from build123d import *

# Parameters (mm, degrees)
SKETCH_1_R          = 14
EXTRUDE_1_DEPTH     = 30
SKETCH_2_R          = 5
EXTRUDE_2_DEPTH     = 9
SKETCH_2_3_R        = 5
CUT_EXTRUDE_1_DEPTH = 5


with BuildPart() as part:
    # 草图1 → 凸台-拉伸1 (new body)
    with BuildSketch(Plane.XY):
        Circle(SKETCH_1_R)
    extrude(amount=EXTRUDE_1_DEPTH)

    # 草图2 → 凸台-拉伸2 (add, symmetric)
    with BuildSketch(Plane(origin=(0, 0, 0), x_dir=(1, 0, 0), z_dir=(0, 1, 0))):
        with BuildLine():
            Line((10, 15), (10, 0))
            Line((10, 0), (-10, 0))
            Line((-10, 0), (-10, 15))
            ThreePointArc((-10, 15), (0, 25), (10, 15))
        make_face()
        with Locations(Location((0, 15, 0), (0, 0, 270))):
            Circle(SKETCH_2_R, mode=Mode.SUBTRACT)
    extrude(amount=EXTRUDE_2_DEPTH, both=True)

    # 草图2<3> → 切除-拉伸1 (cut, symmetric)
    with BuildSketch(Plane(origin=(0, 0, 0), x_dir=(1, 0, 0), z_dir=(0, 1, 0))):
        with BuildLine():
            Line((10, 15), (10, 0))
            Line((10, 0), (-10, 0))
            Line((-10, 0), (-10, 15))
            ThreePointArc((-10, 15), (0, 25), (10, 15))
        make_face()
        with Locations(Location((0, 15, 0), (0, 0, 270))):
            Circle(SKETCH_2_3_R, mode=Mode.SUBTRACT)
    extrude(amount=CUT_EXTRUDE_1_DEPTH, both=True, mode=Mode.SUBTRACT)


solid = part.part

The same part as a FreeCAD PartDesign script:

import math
import FreeCAD as App
import Part
import Sketcher
Q = App.Units.Quantity

doc = App.newDocument("Part")
params = doc.addObject("Spreadsheet::Sheet", "Params")
for row, (alias, value) in enumerate([
    ("sketch1_diameter", "28 mm"),
    ("pad1_length", "30 mm"),
    ("sketch2_diameter", "10 mm"),
    ("sketch2_radius", "10 mm"),
    ("sketch2_height", "15 mm"),
    ("pad2_length", "18 mm"),
    ("sketch3_diameter", "10 mm"),
    ("sketch3_radius", "10 mm"),
    ("sketch3_height", "15 mm"),
    ("pocket1_length", "10 mm"),
], start=1):
    params.set(f"A{row}", alias)
    params.set(f"B{row}", "=" + value)
    params.setAlias(f"B{row}", alias)

body = doc.addObject("PartDesign::Body", "Body")

sketch1 = body.newObject("Sketcher::SketchObject", "Sketch")
sketch1.AttachmentSupport = (doc.getObject("XY_Plane"), [""])
sketch1.MapMode = "FlatFace"
sketch1.addGeometry(Part.Circle(App.Vector(0, 0, 0), App.Vector(0, 0, 1), 14), False)
sketch1.addConstraint(Sketcher.Constraint("Coincident", 0, 3, -1, 1))
sketch1.addConstraint(Sketcher.Constraint("Diameter", 0, Q("28 mm")))
sketch1.setExpression("Constraints[1]", "Params.sketch1_diameter")
pad1 = body.newObject("PartDesign::Pad", "Pad")
pad1.Profile = sketch1
pad1.setExpression("Length", "Params.pad1_length")

sketch2 = body.newObject("Sketcher::SketchObject", "Sketch001")
sketch2.AttachmentSupport = (doc.getObject("XZ_Plane"), [""])
sketch2.MapMode = "FlatFace"
sketch2.addGeometry(Part.LineSegment(App.Vector(10, 0, 0), App.Vector(10, -15, 0)), False)
sketch2.addGeometry(Part.ArcOfCircle(Part.Circle(App.Vector(0, -15, 0), App.Vector(0, 0, 1), 10), math.radians(180), math.radians(360)), False)
sketch2.addGeometry(Part.LineSegment(App.Vector(-10, -15, 0), App.Vector(-10, 0, 0)), False)
sketch2.addGeometry(Part.LineSegment(App.Vector(-10, 0, 0), App.Vector(10, 0, 0)), False)
sketch2.addGeometry(Part.Circle(App.Vector(0, -15, 0), App.Vector(0, 0, 1), 5), False)
sketch2.addConstraint(Sketcher.Constraint("Tangent", 0, 2, 1, 2))
sketch2.addConstraint(Sketcher.Constraint("Tangent", 1, 1, 2, 1))
sketch2.addConstraint(Sketcher.Constraint("Coincident", 2, 2, 3, 1))
sketch2.addConstraint(Sketcher.Constraint("Coincident", 3, 2, 0, 1))
sketch2.addConstraint(Sketcher.Constraint("Vertical", 0))
sketch2.addConstraint(Sketcher.Constraint("Vertical", 2))
sketch2.addConstraint(Sketcher.Constraint("Horizontal", 3))
sketch2.addConstraint(Sketcher.Constraint("Coincident", 4, 3, 1, 3))
sketch2.addConstraint(Sketcher.Constraint("Symmetric", 2, 2, 3, 2, -1, 1))
sketch2.addConstraint(Sketcher.Constraint("Diameter", 4, Q("10 mm")))
sketch2.addConstraint(Sketcher.Constraint("Radius", 1, Q("10 mm")))
sketch2.addConstraint(Sketcher.Constraint("DistanceY", 0, 2, 0, 1, Q("15 mm")))
sketch2.setExpression("Constraints[9]", "Params.sketch2_diameter")
sketch2.setExpression("Constraints[10]", "Params.sketch2_radius")
sketch2.setExpression("Constraints[11]", "Params.sketch2_height")
pad2 = body.newObject("PartDesign::Pad", "Pad001")
pad2.Profile = sketch2
pad2.setExpression("Length", "Params.pad2_length")
pad2.Midplane = True

sketch3 = body.newObject("Sketcher::SketchObject", "Sketch002")
sketch3.AttachmentSupport = (doc.getObject("XZ_Plane"), [""])
sketch3.MapMode = "FlatFace"
sketch3.addGeometry(Part.LineSegment(App.Vector(10, 0, 0), App.Vector(10, -15, 0)), False)
sketch3.addGeometry(Part.ArcOfCircle(Part.Circle(App.Vector(0, -15, 0), App.Vector(0, 0, 1), 10), math.radians(180), math.radians(360)), False)
sketch3.addGeometry(Part.LineSegment(App.Vector(-10, -15, 0), App.Vector(-10, 0, 0)), False)
sketch3.addGeometry(Part.LineSegment(App.Vector(-10, 0, 0), App.Vector(10, 0, 0)), False)
sketch3.addGeometry(Part.Circle(App.Vector(0, -15, 0), App.Vector(0, 0, 1), 5), False)
sketch3.addConstraint(Sketcher.Constraint("Tangent", 0, 2, 1, 2))
sketch3.addConstraint(Sketcher.Constraint("Tangent", 1, 1, 2, 1))
sketch3.addConstraint(Sketcher.Constraint("Coincident", 2, 2, 3, 1))
sketch3.addConstraint(Sketcher.Constraint("Coincident", 3, 2, 0, 1))
sketch3.addConstraint(Sketcher.Constraint("Vertical", 0))
sketch3.addConstraint(Sketcher.Constraint("Vertical", 2))
sketch3.addConstraint(Sketcher.Constraint("Horizontal", 3))
sketch3.addConstraint(Sketcher.Constraint("Coincident", 4, 3, 1, 3))
sketch3.addConstraint(Sketcher.Constraint("Symmetric", 2, 2, 3, 2, -1, 1))
sketch3.addConstraint(Sketcher.Constraint("Diameter", 4, Q("10 mm")))
sketch3.addConstraint(Sketcher.Constraint("Radius", 1, Q("10 mm")))
sketch3.addConstraint(Sketcher.Constraint("DistanceY", 0, 2, 0, 1, Q("15 mm")))
sketch3.setExpression("Constraints[9]", "Params.sketch3_diameter")
sketch3.setExpression("Constraints[10]", "Params.sketch3_radius")
sketch3.setExpression("Constraints[11]", "Params.sketch3_height")
pocket1 = body.newObject("PartDesign::Pocket", "Pocket")
pocket1.Profile = sketch3
pocket1.setExpression("Length", "Params.pocket1_length")
pocket1.Midplane = True

doc.recompute()
